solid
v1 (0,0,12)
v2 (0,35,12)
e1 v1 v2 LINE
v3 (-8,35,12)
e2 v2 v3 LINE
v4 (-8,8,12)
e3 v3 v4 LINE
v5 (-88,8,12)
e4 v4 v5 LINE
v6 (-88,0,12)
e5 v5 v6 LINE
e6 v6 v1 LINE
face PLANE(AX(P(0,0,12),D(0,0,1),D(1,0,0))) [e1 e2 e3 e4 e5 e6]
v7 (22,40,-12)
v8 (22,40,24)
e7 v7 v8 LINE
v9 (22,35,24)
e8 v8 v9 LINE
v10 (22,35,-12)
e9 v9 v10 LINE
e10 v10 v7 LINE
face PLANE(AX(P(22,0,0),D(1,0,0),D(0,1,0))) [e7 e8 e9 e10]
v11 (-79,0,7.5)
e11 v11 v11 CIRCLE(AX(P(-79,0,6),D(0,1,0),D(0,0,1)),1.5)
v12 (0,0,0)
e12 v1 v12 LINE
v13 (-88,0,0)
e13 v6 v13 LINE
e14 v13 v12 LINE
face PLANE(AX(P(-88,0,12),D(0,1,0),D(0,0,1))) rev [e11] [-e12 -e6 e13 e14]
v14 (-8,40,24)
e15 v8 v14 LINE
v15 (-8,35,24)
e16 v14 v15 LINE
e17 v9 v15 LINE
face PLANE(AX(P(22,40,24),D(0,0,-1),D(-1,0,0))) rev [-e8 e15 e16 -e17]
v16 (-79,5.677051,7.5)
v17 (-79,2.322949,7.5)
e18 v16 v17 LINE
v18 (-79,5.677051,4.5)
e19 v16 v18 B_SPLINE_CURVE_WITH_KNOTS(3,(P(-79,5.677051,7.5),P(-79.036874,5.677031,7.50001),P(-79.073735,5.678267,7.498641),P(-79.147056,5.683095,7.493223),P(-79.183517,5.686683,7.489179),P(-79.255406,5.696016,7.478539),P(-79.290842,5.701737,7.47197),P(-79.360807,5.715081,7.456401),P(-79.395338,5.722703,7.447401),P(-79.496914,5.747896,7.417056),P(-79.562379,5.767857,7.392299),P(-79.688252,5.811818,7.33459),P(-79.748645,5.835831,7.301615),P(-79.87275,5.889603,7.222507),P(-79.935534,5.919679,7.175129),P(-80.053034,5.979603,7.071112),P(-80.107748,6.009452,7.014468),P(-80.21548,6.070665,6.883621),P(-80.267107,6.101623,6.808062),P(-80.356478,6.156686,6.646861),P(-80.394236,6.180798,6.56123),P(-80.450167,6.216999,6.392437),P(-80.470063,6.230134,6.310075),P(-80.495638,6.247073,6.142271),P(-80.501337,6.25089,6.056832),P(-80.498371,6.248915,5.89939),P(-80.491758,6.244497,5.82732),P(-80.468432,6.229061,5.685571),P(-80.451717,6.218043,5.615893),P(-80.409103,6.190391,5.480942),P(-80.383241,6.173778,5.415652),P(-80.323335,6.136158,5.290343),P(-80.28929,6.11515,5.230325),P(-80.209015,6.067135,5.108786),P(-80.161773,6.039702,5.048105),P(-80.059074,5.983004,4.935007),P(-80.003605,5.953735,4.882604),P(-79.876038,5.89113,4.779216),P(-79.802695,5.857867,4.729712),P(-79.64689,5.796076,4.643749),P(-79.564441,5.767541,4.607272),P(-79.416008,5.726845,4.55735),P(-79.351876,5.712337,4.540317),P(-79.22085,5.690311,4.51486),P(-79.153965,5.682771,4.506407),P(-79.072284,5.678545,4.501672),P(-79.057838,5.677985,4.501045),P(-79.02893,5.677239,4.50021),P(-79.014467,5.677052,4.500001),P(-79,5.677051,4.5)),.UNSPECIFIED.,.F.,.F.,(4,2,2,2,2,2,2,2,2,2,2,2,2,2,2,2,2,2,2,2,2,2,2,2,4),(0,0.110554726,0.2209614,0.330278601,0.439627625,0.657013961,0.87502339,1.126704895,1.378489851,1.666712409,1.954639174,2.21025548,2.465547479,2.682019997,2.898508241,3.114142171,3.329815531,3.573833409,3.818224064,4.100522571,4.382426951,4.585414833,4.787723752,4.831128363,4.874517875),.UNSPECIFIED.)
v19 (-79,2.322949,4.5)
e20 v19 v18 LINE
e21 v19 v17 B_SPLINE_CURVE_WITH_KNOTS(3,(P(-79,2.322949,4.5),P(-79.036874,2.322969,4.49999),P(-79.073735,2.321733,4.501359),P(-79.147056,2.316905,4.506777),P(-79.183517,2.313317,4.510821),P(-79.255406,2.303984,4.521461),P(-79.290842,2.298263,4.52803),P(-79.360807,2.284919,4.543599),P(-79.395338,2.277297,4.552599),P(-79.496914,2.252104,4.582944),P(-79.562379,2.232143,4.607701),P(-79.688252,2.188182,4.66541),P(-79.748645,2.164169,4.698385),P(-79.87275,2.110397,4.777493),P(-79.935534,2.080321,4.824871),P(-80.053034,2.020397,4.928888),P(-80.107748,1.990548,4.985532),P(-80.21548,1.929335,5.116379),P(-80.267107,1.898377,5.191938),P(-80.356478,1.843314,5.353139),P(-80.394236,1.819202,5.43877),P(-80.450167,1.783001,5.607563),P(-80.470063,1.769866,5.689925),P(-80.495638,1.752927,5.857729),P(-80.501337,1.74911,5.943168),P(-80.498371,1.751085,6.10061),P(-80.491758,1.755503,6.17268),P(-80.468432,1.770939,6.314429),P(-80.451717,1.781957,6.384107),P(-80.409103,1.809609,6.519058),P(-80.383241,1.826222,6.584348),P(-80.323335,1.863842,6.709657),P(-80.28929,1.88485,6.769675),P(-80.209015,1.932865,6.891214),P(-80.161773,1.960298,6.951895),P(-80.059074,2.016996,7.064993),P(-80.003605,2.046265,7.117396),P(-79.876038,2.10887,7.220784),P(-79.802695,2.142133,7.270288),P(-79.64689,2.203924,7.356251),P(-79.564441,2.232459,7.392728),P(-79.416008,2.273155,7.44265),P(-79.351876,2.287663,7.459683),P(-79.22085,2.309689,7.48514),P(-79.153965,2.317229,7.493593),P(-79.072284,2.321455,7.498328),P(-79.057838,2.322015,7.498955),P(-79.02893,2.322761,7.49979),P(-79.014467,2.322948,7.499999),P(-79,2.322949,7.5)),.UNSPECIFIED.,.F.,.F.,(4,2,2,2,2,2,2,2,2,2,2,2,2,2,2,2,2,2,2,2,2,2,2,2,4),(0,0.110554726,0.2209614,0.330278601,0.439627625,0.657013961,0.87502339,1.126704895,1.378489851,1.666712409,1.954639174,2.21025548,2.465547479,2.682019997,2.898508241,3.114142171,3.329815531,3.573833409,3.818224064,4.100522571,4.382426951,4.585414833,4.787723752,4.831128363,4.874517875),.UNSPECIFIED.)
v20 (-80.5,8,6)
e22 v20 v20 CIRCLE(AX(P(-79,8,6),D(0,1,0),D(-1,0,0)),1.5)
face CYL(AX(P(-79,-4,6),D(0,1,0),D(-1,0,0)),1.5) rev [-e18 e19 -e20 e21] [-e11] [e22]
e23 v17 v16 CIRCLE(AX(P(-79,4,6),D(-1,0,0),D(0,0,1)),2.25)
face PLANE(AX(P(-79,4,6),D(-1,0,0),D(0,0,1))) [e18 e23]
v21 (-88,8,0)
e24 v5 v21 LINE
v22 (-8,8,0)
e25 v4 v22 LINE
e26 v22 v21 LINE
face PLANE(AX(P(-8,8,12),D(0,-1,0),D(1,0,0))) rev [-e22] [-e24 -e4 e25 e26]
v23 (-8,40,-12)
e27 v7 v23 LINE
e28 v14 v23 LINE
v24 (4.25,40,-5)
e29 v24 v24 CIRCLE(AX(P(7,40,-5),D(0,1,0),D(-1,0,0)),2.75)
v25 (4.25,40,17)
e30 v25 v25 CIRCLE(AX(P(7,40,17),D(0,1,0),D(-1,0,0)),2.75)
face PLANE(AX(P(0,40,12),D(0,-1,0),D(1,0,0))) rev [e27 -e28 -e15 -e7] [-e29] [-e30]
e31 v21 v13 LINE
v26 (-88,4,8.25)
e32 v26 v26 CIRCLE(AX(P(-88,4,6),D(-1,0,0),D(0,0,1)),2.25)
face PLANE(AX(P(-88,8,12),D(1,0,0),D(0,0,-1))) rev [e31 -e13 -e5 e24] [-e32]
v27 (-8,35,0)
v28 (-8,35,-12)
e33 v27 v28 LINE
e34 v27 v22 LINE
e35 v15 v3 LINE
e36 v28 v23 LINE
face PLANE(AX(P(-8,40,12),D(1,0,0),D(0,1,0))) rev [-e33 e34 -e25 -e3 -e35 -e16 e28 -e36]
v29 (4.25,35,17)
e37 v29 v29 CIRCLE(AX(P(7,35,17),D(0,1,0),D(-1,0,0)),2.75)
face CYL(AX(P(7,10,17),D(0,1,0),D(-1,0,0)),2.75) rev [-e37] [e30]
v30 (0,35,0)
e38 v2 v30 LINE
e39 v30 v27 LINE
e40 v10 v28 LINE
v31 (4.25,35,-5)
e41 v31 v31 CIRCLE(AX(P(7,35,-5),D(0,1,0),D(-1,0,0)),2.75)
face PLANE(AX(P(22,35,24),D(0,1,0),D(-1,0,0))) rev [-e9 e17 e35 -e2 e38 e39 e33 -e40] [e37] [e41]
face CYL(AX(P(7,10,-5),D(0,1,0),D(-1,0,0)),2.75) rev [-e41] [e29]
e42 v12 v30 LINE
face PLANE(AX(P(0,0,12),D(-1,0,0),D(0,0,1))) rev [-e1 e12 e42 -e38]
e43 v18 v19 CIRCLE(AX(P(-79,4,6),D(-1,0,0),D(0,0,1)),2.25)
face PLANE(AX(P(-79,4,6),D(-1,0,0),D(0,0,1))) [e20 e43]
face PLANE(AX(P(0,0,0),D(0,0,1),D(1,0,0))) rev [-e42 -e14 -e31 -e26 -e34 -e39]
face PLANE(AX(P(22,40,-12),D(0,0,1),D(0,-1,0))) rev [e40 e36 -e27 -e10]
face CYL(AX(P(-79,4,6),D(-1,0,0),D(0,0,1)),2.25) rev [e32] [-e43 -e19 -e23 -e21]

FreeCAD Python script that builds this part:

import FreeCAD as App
import Part
import Sketcher

doc = App.newDocument("Part")
body = doc.addObject("PartDesign::Body", "Body")

# Sketch on XY plane
sketch1 = body.newObject("Sketcher::SketchObject", "Sketch")
sketch1.AttachmentSupport = (doc.getObject("XY_Plane"), [""])
sketch1.MapMode = "FlatFace"
sketch1.addGeometry([
    Part.LineSegment(App.Vector(0, 0, 0), App.Vector(0, 40, 0)),  # 0
    Part.LineSegment(App.Vector(0, 40, 0), App.Vector(-8, 40, 0)),  # 1
    Part.LineSegment(App.Vector(-8, 40, 0), App.Vector(-8, 8, 0)),  # 2
    Part.LineSegment(App.Vector(-8, 8, 0), App.Vector(-88, 8, 0)),  # 3
    Part.LineSegment(App.Vector(-88, 8, 0), App.Vector(-88, 0, 0)),  # 4
    Part.LineSegment(App.Vector(-88, 0, 0), App.Vector(0, 0, 0)),  # 5
], False)
sketch1.addConstraint([
    Sketcher.Constraint("Coincident", 0, 2, 1, 1),
    Sketcher.Constraint("Coincident", 1, 2, 2, 1),
    Sketcher.Constraint("Coincident", 2, 2, 3, 1),
    Sketcher.Constraint("Coincident", 3, 2, 4, 1),
    Sketcher.Constraint("Coincident", 4, 2, 5, 1),
    Sketcher.Constraint("Coincident", 5, 2, 0, 1),
    Sketcher.Constraint("Vertical", 0),
    Sketcher.Constraint("Horizontal", 1),
    Sketcher.Constraint("Vertical", 2),
    Sketcher.Constraint("Horizontal", 3),
    Sketcher.Constraint("Vertical", 4),
    Sketcher.Constraint("Horizontal", 5),
    Sketcher.Constraint("Coincident", 5, 2, -1, 1),
    Sketcher.Constraint("Equal", 1, 4),
    Sketcher.Constraint("DistanceX", 1, 2, 1, 1, 8.0),
    Sketcher.Constraint("DistanceX", 3, 2, 3, 1, 80.0),
    Sketcher.Constraint("DistanceY", 0, 1, 0, 2, 40.0),
])
pad1 = body.newObject("PartDesign::Pad", "Pad")
pad1.Profile = sketch1
pad1.Length = 12

# Sketch on XZ plane
sketch2 = body.newObject("Sketcher::SketchObject", "Sketch001")
sketch2.AttachmentSupport = (doc.getObject("XZ_Plane"), [""])
sketch2.MapMode = "FlatFace"
sketch2.AttachmentOffset = App.Placement(App.Vector(0, 0, -8), App.Rotation())
sketch2.addGeometry(Part.Circle(App.Vector(-79, 6, 0), App.Vector(0, 0, 1), 1.5), False)
sketch2.addConstraint([
    Sketcher.Constraint("Diameter", 0, 3.0),
    Sketcher.Constraint("DistanceX", 0, 3, -1, 1, 79.0),
    Sketcher.Constraint("DistanceY", -1, 1, 0, 3, 6.0),
])
pocket1 = body.newObject("PartDesign::Pocket", "Pocket")
pocket1.Profile = sketch2
pocket1.Length = 12
pocket1.Reversed = True

# Sketch on YZ plane
sketch3 = body.newObject("Sketcher::SketchObject", "Sketch002")
sketch3.AttachmentSupport = (doc.getObject("YZ_Plane"), [""])
sketch3.MapMode = "FlatFace"
sketch3.AttachmentOffset = App.Placement(App.Vector(0, 0, -88), App.Rotation())
sketch3.addGeometry(Part.Circle(App.Vector(4, 6, 0), App.Vector(0, 0, 1), 2.25), False)
sketch3.addConstraint([
    Sketcher.Constraint("Diameter", 0, 4.5),
    Sketcher.Constraint("DistanceX", -1, 1, 0, 3, 4.0),
    Sketcher.Constraint("DistanceY", -1, 1, 0, 3, 6.0),
])
pocket2 = body.newObject("PartDesign::Pocket", "Pocket001")
pocket2.Profile = sketch3
pocket2.Length = 9
pocket2.Reversed = True

# Sketch on YZ plane
sketch4 = body.newObject("Sketcher::SketchObject", "Sketch003")
sketch4.AttachmentSupport = (doc.getObject("YZ_Plane"), [""])
sketch4.MapMode = "FlatFace"
sketch4.AttachmentOffset = App.Placement(App.Vector(0, 0, -8), App.Rotation())
sketch4.addGeometry([
    Part.LineSegment(App.Vector(40, 24, 0), App.Vector(35, 24, 0)),
    Part.LineSegment(App.Vector(35, 24, 0), App.Vector(35, -12, 0)),
    Part.LineSegment(App.Vector(35, -12, 0), App.Vector(40, -12, 0)),
    Part.LineSegment(App.Vector(40, -12, 0), App.Vector(40, 24, 0)),
], False)
sketch4.addConstraint([
    Sketcher.Constraint("Coincident", 0, 2, 1, 1),
    Sketcher.Constraint("Coincident", 1, 2, 2, 1),
    Sketcher.Constraint("Coincident", 2, 2, 3, 1),
    Sketcher.Constraint("Coincident", 3, 2, 0, 1),
    Sketcher.Constraint("Horizontal", 0),
    Sketcher.Constraint("Vertical", 1),
    Sketcher.Constraint("Horizontal", 2),
    Sketcher.Constraint("Vertical", 3),
    Sketcher.Constraint("DistanceX", 0, 2, 0, 1, 5.0),
    Sketcher.Constraint("DistanceY", 1, 2, 1, 1, 36.0),
    Sketcher.Constraint("DistanceX", -1, 1, 0, 2, 35.0),
    Sketcher.Constraint("DistanceY", -1, 1, 0, 2, 24.0),
])
pad2 = body.newObject("PartDesign::Pad", "Pad001")
pad2.Profile = sketch4
pad2.Length = 30

# Sketch on XZ plane
sketch5 = body.newObject("Sketcher::SketchObject", "Sketch004")
sketch5.AttachmentSupport = (doc.getObject("XZ_Plane"), [""])
sketch5.MapMode = "FlatFace"
sketch5.AttachmentOffset = App.Placement(App.Vector(0, 0, -40), App.Rotation())
sketch5.addGeometry([
    Part.Circle(App.Vector(7, 17, 0), App.Vector(0, 0, 1), 2.75),
    Part.Circle(App.Vector(7, -5, 0), App.Vector(0, 0, 1), 2.75),
], False)
sketch5.addConstraint([
    Sketcher.Constraint("Equal", 0, 1),
    Sketcher.Constraint("Vertical", 0, 3, 1, 3),
    Sketcher.Constraint("Diameter", 0, 5.5),
    Sketcher.Constraint("DistanceX", -1, 1, 0, 3, 7.0),
    Sketcher.Constraint("DistanceY", -1, 1, 0, 3, 17.0),
    Sketcher.Constraint("DistanceY", 1, 3, -1, 1, 5.0),
])
pocket3 = body.newObject("PartDesign::Pocket", "Pocket002")
pocket3.Profile = sketch5
pocket3.Length = 30
pocket3.Reversed = True

doc.recompute()
